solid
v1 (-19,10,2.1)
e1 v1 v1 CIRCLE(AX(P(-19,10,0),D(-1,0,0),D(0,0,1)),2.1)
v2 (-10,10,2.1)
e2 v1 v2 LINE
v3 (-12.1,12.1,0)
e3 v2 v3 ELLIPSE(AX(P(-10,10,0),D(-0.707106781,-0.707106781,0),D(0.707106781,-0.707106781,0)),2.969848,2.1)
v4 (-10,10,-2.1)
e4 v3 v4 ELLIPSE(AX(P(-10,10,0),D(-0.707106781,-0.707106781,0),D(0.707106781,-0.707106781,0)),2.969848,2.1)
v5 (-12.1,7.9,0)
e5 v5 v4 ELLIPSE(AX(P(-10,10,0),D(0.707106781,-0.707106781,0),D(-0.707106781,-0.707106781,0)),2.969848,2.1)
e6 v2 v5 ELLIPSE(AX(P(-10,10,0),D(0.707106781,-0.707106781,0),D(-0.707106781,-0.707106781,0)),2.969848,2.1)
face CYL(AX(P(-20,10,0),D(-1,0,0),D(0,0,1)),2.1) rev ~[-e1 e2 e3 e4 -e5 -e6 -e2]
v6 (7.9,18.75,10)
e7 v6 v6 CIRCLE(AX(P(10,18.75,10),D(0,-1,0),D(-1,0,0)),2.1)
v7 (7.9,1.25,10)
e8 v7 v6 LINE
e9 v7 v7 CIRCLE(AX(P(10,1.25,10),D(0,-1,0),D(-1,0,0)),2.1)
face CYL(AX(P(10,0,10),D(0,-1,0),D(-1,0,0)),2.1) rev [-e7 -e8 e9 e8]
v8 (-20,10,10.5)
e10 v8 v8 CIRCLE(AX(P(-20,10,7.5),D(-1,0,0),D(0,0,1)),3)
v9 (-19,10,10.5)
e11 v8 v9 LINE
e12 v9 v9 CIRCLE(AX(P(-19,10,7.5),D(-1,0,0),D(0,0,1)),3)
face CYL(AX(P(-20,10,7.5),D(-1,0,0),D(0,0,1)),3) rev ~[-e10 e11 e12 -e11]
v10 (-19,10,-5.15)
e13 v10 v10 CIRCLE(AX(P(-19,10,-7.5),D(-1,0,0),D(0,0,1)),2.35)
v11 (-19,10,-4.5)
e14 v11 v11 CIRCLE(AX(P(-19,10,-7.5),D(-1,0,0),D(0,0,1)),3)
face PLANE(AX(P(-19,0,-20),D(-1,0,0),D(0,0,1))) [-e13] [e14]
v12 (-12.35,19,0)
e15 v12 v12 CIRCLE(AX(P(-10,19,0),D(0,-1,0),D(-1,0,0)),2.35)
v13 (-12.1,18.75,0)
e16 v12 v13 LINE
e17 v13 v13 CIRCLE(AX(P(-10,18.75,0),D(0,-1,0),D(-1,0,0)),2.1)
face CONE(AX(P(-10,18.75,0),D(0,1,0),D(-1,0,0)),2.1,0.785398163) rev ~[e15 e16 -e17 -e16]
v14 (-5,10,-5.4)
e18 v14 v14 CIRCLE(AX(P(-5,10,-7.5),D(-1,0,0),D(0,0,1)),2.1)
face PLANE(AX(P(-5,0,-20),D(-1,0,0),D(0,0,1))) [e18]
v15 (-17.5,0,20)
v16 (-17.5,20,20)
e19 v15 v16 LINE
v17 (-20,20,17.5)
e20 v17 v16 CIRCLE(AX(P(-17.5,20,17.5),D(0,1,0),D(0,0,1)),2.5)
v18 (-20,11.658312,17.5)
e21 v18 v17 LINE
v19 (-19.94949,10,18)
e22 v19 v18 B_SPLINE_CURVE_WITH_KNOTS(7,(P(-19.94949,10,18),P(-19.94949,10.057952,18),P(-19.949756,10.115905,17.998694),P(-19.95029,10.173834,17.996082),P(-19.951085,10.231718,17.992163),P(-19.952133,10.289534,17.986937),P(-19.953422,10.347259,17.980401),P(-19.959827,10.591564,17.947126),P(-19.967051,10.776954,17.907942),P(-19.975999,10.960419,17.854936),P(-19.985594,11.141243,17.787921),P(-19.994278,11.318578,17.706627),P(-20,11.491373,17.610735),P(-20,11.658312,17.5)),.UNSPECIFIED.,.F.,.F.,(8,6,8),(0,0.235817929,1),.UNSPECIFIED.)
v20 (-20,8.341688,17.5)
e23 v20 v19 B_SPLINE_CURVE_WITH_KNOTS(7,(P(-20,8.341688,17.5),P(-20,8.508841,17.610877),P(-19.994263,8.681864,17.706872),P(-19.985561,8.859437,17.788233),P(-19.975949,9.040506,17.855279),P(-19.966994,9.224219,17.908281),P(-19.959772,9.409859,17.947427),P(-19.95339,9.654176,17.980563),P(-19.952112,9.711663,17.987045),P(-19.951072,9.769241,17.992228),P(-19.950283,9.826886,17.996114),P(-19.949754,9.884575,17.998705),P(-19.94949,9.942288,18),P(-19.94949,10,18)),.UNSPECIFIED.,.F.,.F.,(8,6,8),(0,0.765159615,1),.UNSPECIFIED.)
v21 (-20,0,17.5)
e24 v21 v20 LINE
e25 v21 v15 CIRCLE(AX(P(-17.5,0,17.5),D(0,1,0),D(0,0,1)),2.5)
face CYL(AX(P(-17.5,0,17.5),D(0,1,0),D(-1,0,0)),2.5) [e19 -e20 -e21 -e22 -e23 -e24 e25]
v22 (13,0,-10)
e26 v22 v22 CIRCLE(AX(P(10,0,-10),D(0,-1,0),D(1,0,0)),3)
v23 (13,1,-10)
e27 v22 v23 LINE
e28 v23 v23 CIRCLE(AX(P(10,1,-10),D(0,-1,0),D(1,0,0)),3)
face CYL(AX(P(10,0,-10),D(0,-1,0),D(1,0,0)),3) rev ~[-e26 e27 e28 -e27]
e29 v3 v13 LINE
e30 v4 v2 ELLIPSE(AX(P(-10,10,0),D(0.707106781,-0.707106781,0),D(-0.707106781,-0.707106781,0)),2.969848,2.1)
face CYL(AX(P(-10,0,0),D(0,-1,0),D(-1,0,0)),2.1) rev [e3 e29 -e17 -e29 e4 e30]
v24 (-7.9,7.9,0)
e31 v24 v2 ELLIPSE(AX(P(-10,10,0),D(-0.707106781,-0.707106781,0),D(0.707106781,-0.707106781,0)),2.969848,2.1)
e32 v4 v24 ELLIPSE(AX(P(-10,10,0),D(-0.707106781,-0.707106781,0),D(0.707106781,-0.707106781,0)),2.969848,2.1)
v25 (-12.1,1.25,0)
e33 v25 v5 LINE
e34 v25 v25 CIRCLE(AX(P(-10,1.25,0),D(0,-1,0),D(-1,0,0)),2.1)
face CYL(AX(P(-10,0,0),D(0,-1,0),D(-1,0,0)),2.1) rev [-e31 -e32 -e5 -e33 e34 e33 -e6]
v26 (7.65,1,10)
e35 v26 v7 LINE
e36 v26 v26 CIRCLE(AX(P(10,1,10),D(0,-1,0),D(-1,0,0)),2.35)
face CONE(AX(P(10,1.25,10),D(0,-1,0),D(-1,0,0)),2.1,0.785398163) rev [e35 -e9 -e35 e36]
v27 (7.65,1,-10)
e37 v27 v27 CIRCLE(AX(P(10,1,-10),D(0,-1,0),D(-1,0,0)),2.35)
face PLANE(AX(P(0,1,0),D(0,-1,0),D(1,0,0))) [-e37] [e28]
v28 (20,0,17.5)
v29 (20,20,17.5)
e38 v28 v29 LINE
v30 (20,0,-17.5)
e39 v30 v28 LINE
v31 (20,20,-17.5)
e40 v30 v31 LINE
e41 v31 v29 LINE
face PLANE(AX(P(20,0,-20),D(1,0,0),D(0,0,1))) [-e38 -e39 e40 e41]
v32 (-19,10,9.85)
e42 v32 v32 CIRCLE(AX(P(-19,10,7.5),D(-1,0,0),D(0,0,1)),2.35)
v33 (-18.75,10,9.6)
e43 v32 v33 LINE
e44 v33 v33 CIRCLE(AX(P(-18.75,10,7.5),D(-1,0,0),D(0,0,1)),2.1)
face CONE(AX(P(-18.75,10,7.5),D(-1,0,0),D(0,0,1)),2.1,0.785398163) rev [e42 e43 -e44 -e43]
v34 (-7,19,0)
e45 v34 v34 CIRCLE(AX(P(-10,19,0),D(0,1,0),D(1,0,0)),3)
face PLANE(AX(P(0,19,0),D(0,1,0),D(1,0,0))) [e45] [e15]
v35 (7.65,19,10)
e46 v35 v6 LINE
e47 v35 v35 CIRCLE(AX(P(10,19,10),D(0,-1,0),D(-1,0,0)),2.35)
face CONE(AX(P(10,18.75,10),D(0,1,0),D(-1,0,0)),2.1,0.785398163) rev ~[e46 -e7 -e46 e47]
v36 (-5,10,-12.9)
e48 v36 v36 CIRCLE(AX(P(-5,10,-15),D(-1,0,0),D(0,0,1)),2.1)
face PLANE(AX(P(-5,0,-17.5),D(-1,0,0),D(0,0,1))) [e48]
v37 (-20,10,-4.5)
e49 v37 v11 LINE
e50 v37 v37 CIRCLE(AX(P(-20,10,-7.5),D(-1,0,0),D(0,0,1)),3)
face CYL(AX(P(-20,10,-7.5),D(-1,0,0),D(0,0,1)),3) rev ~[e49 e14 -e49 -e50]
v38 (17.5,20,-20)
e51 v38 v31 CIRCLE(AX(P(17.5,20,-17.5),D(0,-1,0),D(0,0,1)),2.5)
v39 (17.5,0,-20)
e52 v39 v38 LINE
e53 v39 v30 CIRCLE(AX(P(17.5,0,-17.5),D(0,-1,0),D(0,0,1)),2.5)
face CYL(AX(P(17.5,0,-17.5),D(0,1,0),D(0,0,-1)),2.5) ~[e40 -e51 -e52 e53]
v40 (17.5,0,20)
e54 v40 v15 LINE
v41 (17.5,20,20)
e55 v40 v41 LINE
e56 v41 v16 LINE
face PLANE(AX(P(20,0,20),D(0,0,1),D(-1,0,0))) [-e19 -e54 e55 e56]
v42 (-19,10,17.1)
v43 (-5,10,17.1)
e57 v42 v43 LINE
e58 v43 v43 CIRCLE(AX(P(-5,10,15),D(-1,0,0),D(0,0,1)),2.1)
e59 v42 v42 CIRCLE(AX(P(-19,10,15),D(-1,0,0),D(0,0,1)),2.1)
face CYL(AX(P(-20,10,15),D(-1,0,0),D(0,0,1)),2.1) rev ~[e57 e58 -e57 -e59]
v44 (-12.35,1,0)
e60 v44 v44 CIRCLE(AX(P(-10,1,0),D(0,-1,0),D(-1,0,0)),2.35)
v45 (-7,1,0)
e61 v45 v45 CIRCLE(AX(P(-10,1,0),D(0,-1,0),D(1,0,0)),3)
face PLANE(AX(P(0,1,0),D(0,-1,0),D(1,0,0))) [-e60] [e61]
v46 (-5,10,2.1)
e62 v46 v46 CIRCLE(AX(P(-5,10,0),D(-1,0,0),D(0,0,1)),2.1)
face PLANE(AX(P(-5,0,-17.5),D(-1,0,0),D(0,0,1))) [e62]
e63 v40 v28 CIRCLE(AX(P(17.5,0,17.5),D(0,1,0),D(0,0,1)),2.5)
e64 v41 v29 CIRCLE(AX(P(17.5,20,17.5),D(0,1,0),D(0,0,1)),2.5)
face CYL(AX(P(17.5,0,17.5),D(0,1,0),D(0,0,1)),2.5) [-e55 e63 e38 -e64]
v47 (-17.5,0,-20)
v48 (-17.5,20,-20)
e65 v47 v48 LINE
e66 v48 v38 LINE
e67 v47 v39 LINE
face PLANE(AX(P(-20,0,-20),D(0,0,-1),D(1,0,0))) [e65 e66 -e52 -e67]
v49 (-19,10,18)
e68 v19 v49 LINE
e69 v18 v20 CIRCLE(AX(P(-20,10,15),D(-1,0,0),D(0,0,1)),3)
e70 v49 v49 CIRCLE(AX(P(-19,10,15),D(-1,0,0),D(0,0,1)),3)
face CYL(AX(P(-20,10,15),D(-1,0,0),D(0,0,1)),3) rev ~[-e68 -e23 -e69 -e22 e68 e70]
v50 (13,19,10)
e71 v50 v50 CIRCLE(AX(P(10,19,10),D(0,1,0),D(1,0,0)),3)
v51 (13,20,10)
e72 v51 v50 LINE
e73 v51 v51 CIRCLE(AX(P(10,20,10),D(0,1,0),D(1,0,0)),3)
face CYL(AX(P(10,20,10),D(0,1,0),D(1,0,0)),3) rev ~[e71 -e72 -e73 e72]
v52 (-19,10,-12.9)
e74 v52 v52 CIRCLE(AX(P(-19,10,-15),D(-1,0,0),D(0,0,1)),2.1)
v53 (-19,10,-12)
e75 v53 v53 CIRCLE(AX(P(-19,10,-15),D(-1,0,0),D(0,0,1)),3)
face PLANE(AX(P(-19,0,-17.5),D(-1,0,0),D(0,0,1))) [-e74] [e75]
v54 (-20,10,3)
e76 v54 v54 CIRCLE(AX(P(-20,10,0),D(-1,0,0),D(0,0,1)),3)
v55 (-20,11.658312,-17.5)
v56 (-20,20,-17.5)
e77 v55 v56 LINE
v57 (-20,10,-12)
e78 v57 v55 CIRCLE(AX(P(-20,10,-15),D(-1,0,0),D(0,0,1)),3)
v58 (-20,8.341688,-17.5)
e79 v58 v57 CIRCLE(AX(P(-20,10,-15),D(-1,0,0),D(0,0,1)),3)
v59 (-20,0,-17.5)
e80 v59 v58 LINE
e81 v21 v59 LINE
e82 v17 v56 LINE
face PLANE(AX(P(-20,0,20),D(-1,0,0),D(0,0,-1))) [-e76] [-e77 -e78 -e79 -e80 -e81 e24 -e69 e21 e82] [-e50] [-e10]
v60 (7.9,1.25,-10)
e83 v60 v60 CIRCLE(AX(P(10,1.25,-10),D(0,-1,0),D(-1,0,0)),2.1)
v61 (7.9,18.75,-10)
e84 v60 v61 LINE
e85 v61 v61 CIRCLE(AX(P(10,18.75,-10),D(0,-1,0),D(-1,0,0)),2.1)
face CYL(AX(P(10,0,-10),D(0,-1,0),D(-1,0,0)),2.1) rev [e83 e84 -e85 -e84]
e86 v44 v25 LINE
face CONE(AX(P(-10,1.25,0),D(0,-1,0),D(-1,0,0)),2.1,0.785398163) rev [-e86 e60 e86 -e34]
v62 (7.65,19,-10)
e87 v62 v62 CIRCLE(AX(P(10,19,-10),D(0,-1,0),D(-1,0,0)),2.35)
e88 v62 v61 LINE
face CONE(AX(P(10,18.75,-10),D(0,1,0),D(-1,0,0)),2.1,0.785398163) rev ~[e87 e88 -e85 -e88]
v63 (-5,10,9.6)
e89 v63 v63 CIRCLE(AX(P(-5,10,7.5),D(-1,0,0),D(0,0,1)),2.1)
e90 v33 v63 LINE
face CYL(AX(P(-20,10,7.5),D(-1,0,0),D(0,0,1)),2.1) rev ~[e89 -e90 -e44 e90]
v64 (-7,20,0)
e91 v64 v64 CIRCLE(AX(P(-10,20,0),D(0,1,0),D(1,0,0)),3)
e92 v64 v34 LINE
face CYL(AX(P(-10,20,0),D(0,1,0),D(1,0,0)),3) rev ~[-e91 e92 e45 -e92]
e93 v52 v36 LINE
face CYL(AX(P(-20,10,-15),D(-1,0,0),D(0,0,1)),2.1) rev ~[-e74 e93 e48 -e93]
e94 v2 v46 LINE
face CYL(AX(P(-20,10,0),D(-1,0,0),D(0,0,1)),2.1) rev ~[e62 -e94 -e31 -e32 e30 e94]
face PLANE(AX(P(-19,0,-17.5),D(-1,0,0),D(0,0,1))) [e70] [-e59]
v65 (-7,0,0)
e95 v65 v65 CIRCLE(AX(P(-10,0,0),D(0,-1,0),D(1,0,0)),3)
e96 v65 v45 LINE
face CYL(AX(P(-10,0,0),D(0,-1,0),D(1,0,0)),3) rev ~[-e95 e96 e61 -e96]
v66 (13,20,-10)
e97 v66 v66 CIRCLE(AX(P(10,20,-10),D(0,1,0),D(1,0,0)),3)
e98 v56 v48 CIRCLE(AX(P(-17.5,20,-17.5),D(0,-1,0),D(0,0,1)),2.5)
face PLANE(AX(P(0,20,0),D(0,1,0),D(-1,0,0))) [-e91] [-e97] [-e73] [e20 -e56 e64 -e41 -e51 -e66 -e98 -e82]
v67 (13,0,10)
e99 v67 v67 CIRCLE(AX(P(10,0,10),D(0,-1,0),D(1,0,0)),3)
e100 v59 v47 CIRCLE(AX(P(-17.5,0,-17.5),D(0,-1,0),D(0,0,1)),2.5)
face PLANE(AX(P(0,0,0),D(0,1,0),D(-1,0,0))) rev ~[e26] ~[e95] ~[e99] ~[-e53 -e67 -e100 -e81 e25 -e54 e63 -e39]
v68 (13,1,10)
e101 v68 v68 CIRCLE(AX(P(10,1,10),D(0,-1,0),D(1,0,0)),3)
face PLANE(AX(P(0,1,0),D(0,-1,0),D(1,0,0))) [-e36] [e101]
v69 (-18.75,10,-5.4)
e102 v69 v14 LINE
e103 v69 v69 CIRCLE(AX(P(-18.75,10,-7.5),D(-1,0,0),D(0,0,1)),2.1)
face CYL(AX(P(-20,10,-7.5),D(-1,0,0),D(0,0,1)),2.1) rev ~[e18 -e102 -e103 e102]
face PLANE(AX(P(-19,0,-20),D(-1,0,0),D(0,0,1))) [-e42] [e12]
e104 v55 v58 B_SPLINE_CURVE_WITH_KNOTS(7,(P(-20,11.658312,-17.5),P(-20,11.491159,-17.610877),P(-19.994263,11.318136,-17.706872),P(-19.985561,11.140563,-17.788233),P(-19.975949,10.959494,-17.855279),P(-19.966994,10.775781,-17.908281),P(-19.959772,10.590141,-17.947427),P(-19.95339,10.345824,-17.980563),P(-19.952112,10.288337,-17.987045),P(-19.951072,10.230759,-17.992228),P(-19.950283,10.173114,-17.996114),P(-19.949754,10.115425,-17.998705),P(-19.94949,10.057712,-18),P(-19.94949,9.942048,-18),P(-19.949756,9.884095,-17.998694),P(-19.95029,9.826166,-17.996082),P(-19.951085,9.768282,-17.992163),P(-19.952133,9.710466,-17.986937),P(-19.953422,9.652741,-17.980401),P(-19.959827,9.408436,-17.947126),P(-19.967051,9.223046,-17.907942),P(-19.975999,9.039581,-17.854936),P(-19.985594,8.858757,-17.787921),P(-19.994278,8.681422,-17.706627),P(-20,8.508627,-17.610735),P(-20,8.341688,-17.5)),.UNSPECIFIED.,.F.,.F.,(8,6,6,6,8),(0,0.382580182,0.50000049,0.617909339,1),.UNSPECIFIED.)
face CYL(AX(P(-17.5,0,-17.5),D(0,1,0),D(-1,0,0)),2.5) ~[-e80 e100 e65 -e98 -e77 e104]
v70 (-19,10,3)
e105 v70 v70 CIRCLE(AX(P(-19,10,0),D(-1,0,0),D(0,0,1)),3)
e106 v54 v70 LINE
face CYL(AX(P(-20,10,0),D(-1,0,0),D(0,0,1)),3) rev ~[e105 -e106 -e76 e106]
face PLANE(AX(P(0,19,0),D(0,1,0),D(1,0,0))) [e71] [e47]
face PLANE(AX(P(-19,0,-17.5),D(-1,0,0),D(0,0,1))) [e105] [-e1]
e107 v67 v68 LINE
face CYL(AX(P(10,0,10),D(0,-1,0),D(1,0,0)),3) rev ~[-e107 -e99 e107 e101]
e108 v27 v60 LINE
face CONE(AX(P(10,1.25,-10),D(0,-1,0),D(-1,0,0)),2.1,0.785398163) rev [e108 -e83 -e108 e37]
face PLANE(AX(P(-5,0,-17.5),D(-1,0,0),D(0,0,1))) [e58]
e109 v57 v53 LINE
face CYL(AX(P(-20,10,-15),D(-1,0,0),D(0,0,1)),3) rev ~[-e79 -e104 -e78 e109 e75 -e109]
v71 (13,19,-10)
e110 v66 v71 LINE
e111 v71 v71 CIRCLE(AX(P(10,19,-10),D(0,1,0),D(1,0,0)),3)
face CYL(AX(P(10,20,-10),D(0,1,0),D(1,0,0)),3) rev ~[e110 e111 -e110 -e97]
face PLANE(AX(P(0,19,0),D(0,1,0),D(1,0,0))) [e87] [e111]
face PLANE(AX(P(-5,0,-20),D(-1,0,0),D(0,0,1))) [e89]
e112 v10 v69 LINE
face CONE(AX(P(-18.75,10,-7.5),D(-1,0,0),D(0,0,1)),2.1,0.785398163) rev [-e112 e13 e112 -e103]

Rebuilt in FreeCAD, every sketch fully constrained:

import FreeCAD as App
import Part
import Sketcher
Q = App.Units.Quantity


def edges_at(feature, points):
    """Names of the edges that pass closest to the given points."""
    edges = feature.Shape.Edges
    near = lambda p: min(range(len(edges)), key=lambda i: edges[i].distToShape(Part.Vertex(*p))[0])
    return sorted({f"Edge{near(p) + 1}" for p in points})

doc = App.newDocument("Part")
body = doc.addObject("PartDesign::Body", "Body")

# Sketch on XZ plane
sketch1 = body.newObject("Sketcher::SketchObject", "Sketch")
sketch1.AttachmentSupport = (doc.getObject("XZ_Plane"), [""])
sketch1.MapMode = "FlatFace"
sketch1.addGeometry([
    Part.LineSegment(App.Vector(-20, 20, 0), App.Vector(20, 20, 0)),  # 0
    Part.LineSegment(App.Vector(20, 20, 0), App.Vector(20, -20, 0)),  # 1
    Part.LineSegment(App.Vector(20, -20, 0), App.Vector(-20, -20, 0)),  # 2
    Part.LineSegment(App.Vector(-20, -20, 0), App.Vector(-20, 20, 0)),  # 3
    Part.Circle(App.Vector(10, -10, 0), App.Vector(0, 0, 1), 2.1),  # 4
    Part.Circle(App.Vector(10, 10, 0), App.Vector(0, 0, 1), 2.1),  # 5
    Part.Circle(App.Vector(-10, 0, 0), App.Vector(0, 0, 1), 2.1),  # 6
], False)
sketch1.addConstraint([
    Sketcher.Constraint("Coincident", 0, 2, 1, 1),
    Sketcher.Constraint("Coincident", 1, 2, 2, 1),
    Sketcher.Constraint("Coincident", 2, 2, 3, 1),
    Sketcher.Constraint("Coincident", 3, 2, 0, 1),
    Sketcher.Constraint("Horizontal", 0),
    Sketcher.Constraint("Vertical", 1),
    Sketcher.Constraint("Horizontal", 2),
    Sketcher.Constraint("Vertical", 3),
    Sketcher.Constraint("Equal", 4, 5),
    Sketcher.Constraint("Equal", 5, 6),
    Sketcher.Constraint("Symmetric", 0, 2, 2, 2, -1, 1),
    Sketcher.Constraint("Symmetric", 4, 3, 5, 3, -1),
    Sketcher.Constraint("PointOnObject", 6, 3, -1),
    Sketcher.Constraint("Equal", 2, 1),
    Sketcher.Constraint("Diameter", 4, Q("4.2 mm")),
    Sketcher.Constraint("DistanceX", 0, 1, 0, 2, Q("40 mm")),
    Sketcher.Constraint("DistanceX", -1, 1, 4, 3, Q("10 mm")),
    Sketcher.Constraint("DistanceY", 4, 3, -1, 1, Q("10 mm")),
    Sketcher.Constraint("DistanceX", 6, 3, -1, 1, Q("10 mm")),
])
pad1 = body.newObject("PartDesign::Pad", "Pad")
pad1.Profile = sketch1
pad1.Length = 20
pad1.Reversed = True

# Sketch on XZ plane
sketch2 = body.newObject("Sketcher::SketchObject", "Sketch001")
sketch2.AttachmentSupport = (doc.getObject("XZ_Plane"), [""])
sketch2.MapMode = "FlatFace"
sketch2.AttachmentOffset = App.Placement(App.Vector(0, 0, -20), App.Rotation())
sketch2.addGeometry([
    Part.Circle(App.Vector(-10, 0, 0), App.Vector(0, 0, 1), 3),
    Part.Circle(App.Vector(10, -10, 0), App.Vector(0, 0, 1), 3),
    Part.Circle(App.Vector(10, 10, 0), App.Vector(0, 0, 1), 3),
], False)
sketch2.addConstraint([
    Sketcher.Constraint("Equal", 0, 1),
    Sketcher.Constraint("Equal", 1, 2),
    Sketcher.Constraint("Symmetric", 1, 3, 2, 3, -1),
    Sketcher.Constraint("PointOnObject", 0, 3, -1),
    Sketcher.Constraint("Diameter", 0, Q("6 mm")),
    Sketcher.Constraint("DistanceX", 0, 3, -1, 1, Q("10 mm")),
    Sketcher.Constraint("DistanceX", -1, 1, 1, 3, Q("10 mm")),
    Sketcher.Constraint("DistanceY", 1, 3, -1, 1, Q("10 mm")),
])
pocket1 = body.newObject("PartDesign::Pocket", "Pocket")
pocket1.Profile = sketch2
pocket1.Length = 1
pocket1.Reversed = True

# Sketch on XZ plane
sketch3 = body.newObject("Sketcher::SketchObject", "Sketch002")
sketch3.AttachmentSupport = (doc.getObject("XZ_Plane"), [""])
sketch3.MapMode = "FlatFace"
sketch3.addGeometry([
    Part.Circle(App.Vector(-10, 0, 0), App.Vector(0, 0, 1), 3),
    Part.Circle(App.Vector(10, 10, 0), App.Vector(0, 0, 1), 3),
    Part.Circle(App.Vector(10, -10, 0), App.Vector(0, 0, 1), 3),
], False)
sketch3.addConstraint([
    Sketcher.Constraint("Equal", 0, 1),
    Sketcher.Constraint("Equal", 1, 2),
    Sketcher.Constraint("Symmetric", 1, 3, 2, 3, -1),
    Sketcher.Constraint("PointOnObject", 0, 3, -1),
    Sketcher.Constraint("Diameter", 0, Q("6 mm")),
    Sketcher.Constraint("DistanceX", 0, 3, -1, 1, Q("10 mm")),
    Sketcher.Constraint("DistanceX", -1, 1, 1, 3, Q("10 mm")),
    Sketcher.Constraint("DistanceY", -1, 1, 1, 3, Q("10 mm")),
])
pocket2 = body.newObject("PartDesign::Pocket", "Pocket001")
pocket2.Profile = sketch3
pocket2.Length = 1
doc.recompute()

chamfer = body.newObject("PartDesign::Chamfer", "Chamfer")
chamfer.Base = (pocket2, edges_at(pocket2, [
    (12.1, 1, 10),
    (-7.9, 1, 0),
    (12.1, 1, -10),
    (12.1, 19, -10),
    (-7.9, 19, 0),
    (12.1, 19, 10),
]))
chamfer.Size = 0.25

# Sketch on YZ plane
sketch4 = body.newObject("Sketcher::SketchObject", "Sketch003")
sketch4.AttachmentSupport = (doc.getObject("YZ_Plane"), [""])
sketch4.MapMode = "FlatFace"
sketch4.AttachmentOffset = App.Placement(App.Vector(0, 0, -20), App.Rotation())
sketch4.addGeometry([
    Part.Circle(App.Vector(10, -7.5, 0), App.Vector(0, 0, 1), 2.1),
    Part.Circle(App.Vector(10, 7.5, 0), App.Vector(0, 0, 1), 2.1),
], False)
sketch4.addConstraint([
    Sketcher.Constraint("Equal", 0, 1),
    Sketcher.Constraint("Symmetric", 0, 3, 1, 3, -1),
    Sketcher.Constraint("Diameter", 0, Q("4.2 mm")),
    Sketcher.Constraint("DistanceY", 0, 3, 1, 3, Q("15 mm")),
    Sketcher.Constraint("DistanceX", -1, 1, 0, 3, Q("10 mm")),
])
pocket3 = body.newObject("PartDesign::Pocket", "Pocket002")
pocket3.Profile = sketch4
pocket3.Length = 15
pocket3.Reversed = True

# Sketch on YZ plane
sketch5 = body.newObject("Sketcher::SketchObject", "Sketch004")
sketch5.AttachmentSupport = (doc.getObject("YZ_Plane"), [""])
sketch5.MapMode = "FlatFace"
sketch5.AttachmentOffset = App.Placement(App.Vector(0, 0, -20), App.Rotation())
sketch5.addGeometry([
    Part.Circle(App.Vector(10, -7.5, 0), App.Vector(0, 0, 1), 3),
    Part.Circle(App.Vector(10, 7.5, 0), App.Vector(0, 0, 1), 3),
], False)
sketch5.addConstraint([
    Sketcher.Constraint("Equal", 0, 1),
    Sketcher.Constraint("Symmetric", 0, 3, 1, 3, -1),
    Sketcher.Constraint("Diameter", 0, Q("6 mm")),
    Sketcher.Constraint("DistanceX", -1, 1, 0, 3, Q("10 mm")),
    Sketcher.Constraint("DistanceY", 0, 3, 1, 3, Q("15 mm")),
])
pocket4 = body.newObject("PartDesign::Pocket", "Pocket003")
pocket4.Profile = sketch5
pocket4.Length = 1
pocket4.Reversed = True
doc.recompute()

chamfer2 = body.newObject("PartDesign::Chamfer", "Chamfer001")
chamfer2.Base = (pocket4, edges_at(pocket4, [(-19, 10, -9.6), (-19, 10, 5.4)]))
chamfer2.Size = 0.25
doc.recompute()

fillet = body.newObject("PartDesign::Fillet", "Fillet")
fillet.Base = (chamfer2, edges_at(chamfer2, [
    (-20, 10, -20),
    (-20, 10, 20),
    (20, 10, 20),
    (20, 10, -20),
]))
fillet.Radius = 2.5

# Sketch on YZ plane
sketch6 = body.newObject("Sketcher::SketchObject", "Sketch005")
sketch6.AttachmentSupport = (doc.getObject("YZ_Plane"), [""])
sketch6.MapMode = "FlatFace"
sketch6.AttachmentOffset = App.Placement(App.Vector(0, 0, -20), App.Rotation())
sketch6.addGeometry([
    Part.Circle(App.Vector(10, 0, 0), App.Vector(0, 0, 1), 2.1),
    Part.Circle(App.Vector(10, 15, 0), App.Vector(0, 0, 1), 2.1),
    Part.Circle(App.Vector(10, -15, 0), App.Vector(0, 0, 1), 2.1),
], False)
sketch6.addConstraint([
    Sketcher.Constraint("Equal", 0, 1),
    Sketcher.Constraint("Equal", 1, 2),
    Sketcher.Constraint("Symmetric", 1, 3, 2, 3, -1),
    Sketcher.Constraint("PointOnObject", 0, 3, -1),
    Sketcher.Constraint("Vertical", 0, 3, 1, 3),
    Sketcher.Constraint("Diameter", 0, Q("4.2 mm")),
    Sketcher.Constraint("DistanceY", -1, 1, 1, 3, Q("15 mm")),
    Sketcher.Constraint("DistanceX", -1, 1, 0, 3, Q("10 mm")),
])
pocket5 = body.newObject("PartDesign::Pocket", "Pocket004")
pocket5.Profile = sketch6
pocket5.Length = 15
pocket5.Reversed = True

# Sketch on YZ plane
sketch7 = body.newObject("Sketcher::SketchObject", "Sketch006")
sketch7.AttachmentSupport = (doc.getObject("YZ_Plane"), [""])
sketch7.MapMode = "FlatFace"
sketch7.AttachmentOffset = App.Placement(App.Vector(0, 0, -20), App.Rotation())
sketch7.addGeometry([
    Part.Circle(App.Vector(10, -15, 0), App.Vector(0, 0, 1), 3),
    Part.Circle(App.Vector(10, 0, 0), App.Vector(0, 0, 1), 3),
    Part.Circle(App.Vector(10, 0, 0), App.Vector(0, 0, 1), 2.1),
    Part.Circle(App.Vector(10, 15, 0), App.Vector(0, 0, 1), 3),
], False)
sketch7.addConstraint([
    Sketcher.Constraint("Coincident", 2, 3, 1, 3),
    Sketcher.Constraint("Equal", 0, 1),
    Sketcher.Constraint("Equal", 1, 3),
    Sketcher.Constraint("Symmetric", 0, 3, 3, 3, -1),
    Sketcher.Constraint("PointOnObject", 1, 3, -1),
    Sketcher.Constraint("Vertical", 0, 3, 1, 3),
    Sketcher.Constraint("Diameter", 0, Q("6 mm")),
    Sketcher.Constraint("Diameter", 2, Q("4.2 mm")),
    Sketcher.Constraint("DistanceX", -1, 1, 0, 3, Q("10 mm")),
    Sketcher.Constraint("DistanceY", 0, 3, -1, 1, Q("15 mm")),
])
pocket6 = body.newObject("PartDesign::Pocket", "Pocket005")
pocket6.Profile = sketch7
pocket6.Length = 1
pocket6.Reversed = True

doc.recompute()
